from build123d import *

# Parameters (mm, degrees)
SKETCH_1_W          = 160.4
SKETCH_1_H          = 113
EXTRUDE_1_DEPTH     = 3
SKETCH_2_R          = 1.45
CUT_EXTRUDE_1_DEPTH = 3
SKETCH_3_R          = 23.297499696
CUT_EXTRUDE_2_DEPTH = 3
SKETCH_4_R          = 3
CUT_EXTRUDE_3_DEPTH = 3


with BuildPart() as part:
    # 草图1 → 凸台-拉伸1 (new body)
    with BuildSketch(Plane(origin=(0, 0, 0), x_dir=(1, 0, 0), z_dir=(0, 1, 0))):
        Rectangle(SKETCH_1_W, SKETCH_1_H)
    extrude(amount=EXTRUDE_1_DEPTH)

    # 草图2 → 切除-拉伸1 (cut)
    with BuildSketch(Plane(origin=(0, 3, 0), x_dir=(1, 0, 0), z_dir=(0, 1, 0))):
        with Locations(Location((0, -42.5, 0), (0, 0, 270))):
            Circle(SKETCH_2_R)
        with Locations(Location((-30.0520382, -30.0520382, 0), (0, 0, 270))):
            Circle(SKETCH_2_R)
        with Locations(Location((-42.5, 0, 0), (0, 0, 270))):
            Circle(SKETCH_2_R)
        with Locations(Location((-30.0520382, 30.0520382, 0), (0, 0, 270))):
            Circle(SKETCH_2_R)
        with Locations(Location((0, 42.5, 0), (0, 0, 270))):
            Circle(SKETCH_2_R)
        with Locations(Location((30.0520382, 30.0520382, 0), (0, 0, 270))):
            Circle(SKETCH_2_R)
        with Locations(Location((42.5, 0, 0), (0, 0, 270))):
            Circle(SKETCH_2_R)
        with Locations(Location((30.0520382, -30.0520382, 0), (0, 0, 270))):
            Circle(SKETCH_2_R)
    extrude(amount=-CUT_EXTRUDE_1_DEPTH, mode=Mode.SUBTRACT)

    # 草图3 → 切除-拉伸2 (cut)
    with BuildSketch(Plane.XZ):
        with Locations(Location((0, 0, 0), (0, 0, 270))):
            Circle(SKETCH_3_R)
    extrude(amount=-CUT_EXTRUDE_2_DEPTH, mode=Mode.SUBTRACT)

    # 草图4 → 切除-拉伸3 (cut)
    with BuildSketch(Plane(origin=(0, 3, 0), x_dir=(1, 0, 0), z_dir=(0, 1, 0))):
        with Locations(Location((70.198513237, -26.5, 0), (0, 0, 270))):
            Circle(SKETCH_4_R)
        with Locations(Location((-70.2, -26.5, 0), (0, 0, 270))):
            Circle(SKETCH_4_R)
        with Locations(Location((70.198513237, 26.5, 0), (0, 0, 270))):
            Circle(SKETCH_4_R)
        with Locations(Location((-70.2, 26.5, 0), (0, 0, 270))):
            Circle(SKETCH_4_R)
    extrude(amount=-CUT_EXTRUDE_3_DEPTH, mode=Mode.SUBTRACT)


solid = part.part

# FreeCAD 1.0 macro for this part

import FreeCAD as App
import Part
import Sketcher

V = App.Vector

doc = App.newDocument("Part")
body = doc.addObject("PartDesign::Body", "Body")

sketch1 = body.newObject("Sketcher::SketchObject", "Sketch")
sketch1.AttachmentSupport = (doc.getObject("XZ_Plane"), [""])
sketch1.MapMode = "FlatFace"
sketch1.addGeometry([
    Part.LineSegment(V(-80.2, -56.5, 0), V(-80.2, 56.5, 0)),
    Part.LineSegment(V(-80.2, 56.5, 0), V(80.2, 56.5, 0)),
    Part.LineSegment(V(80.2, 56.5, 0), V(80.2, -56.5, 0)),
    Part.LineSegment(V(80.2, -56.5, 0), V(-80.2, -56.5, 0)),
], False)
sketch1.addConstraint([
    Sketcher.Constraint("Coincident", 0, 2, 1, 1),
    Sketcher.Constraint("Coincident", 1, 2, 2, 1),
    Sketcher.Constraint("Coincident", 2, 2, 3, 1),
    Sketcher.Constraint("Coincident", 3, 2, 0, 1),
    Sketcher.Constraint("Vertical", 0),
    Sketcher.Constraint("Horizontal", 1),
    Sketcher.Constraint("Vertical", 2),
    Sketcher.Constraint("Horizontal", 3),
    Sketcher.Constraint("Symmetric", 0, 2, 2, 2, -1, 1),
    Sketcher.Constraint("DistanceY", 0, 1, 0, 2, 113.0),
    Sketcher.Constraint("DistanceX", 1, 1, 1, 2, 160.4),
])
pad1 = body.newObject("PartDesign::Pad", "Pad")
pad1.Profile = sketch1
pad1.Length = 3
pad1.Reversed = True

sketch2 = body.newObject("Sketcher::SketchObject", "Sketch001")
sketch2.AttachmentSupport = (doc.getObject("XZ_Plane"), [""])
sketch2.MapMode = "FlatFace"
sketch2.AttachmentOffset = App.Placement(V(0, 0, -3), App.Rotation())
sketch2.addGeometry([
    Part.Circle(V(0, 42.5, 0), V(0, 0, 1), 1.45),
    Part.Circle(V(-30.052038, 30.052038, 0), V(0, 0, 1), 1.45),
    Part.Circle(V(-42.5, 0, 0), V(0, 0, 1), 1.45),
    Part.Circle(V(-30.052038, -30.052038, 0), V(0, 0, 1), 1.45),
    Part.Circle(V(0, -42.5, 0), V(0, 0, 1), 1.45),
    Part.Circle(V(30.052038, -30.052038, 0), V(0, 0, 1), 1.45),
    Part.Circle(V(42.5, 0, 0), V(0, 0, 1), 1.45),
    Part.Circle(V(30.052038, 30.052038, 0), V(0, 0, 1), 1.45),
], False)
sketch2.addConstraint([
    Sketcher.Constraint("Equal", 0, 1),
    Sketcher.Constraint("Equal", 1, 2),
    Sketcher.Constraint("Equal", 2, 3),
    Sketcher.Constraint("Equal", 3, 4),
    Sketcher.Constraint("Equal", 4, 5),
    Sketcher.Constraint("Equal", 5, 6),
    Sketcher.Constraint("Equal", 6, 7),
    Sketcher.Constraint("Symmetric", 0, 3, 4, 3, -1, 1),
    Sketcher.Constraint("Symmetric", 1, 3, 5, 3, -1, 1),
    Sketcher.Constraint("Symmetric", 2, 3, 6, 3, -1, 1),
    Sketcher.Constraint("Symmetric", 3, 3, 7, 3, -1, 1),
    Sketcher.Constraint("Symmetric", 3, 3, 5, 3, -2),
    Sketcher.Constraint("PointOnObject", 0, 3, -2),
    Sketcher.Constraint("PointOnObject", 2, 3, -1),
    Sketcher.Constraint("Diameter", 0, 2.9),
    Sketcher.Constraint("DistanceY", 4, 3, 0, 3, 85.0),
    Sketcher.Constraint("DistanceX", 2, 3, -1, 1, 42.5),
    Sketcher.Constraint("DistanceX", 1, 3, -1, 1, 30.052038),
    Sketcher.Constraint("DistanceY", -1, 1, 1, 3, 30.052038),
])
pocket1 = body.newObject("PartDesign::Pocket", "Pocket")
pocket1.Profile = sketch2
pocket1.Length = 3
pocket1.Reversed = True

sketch3 = body.newObject("Sketcher::SketchObject", "Sketch002")
sketch3.AttachmentSupport = (doc.getObject("XZ_Plane"), [""])
sketch3.MapMode = "FlatFace"
sketch3.addGeometry(Part.Circle(V(0, 0, 0), V(0, 0, 1), 23.2975), False)
sketch3.addConstraint([
    Sketcher.Constraint("Coincident", 0, 3, -1, 1),
    Sketcher.Constraint("Diameter", 0, 46.594999),
])
pocket2 = body.newObject("PartDesign::Pocket", "Pocket001")
pocket2.Profile = sketch3
pocket2.Length = 3

sketch4 = body.newObject("Sketcher::SketchObject", "Sketch003")
sketch4.AttachmentSupport = (doc.getObject("XZ_Plane"), [""])
sketch4.MapMode = "FlatFace"
sketch4.AttachmentOffset = App.Placement(V(0, 0, -3), App.Rotation())
sketch4.addGeometry([
    Part.Circle(V(70.198513, 26.5, 0), V(0, 0, 1), 3),
    Part.Circle(V(-70.2, 26.5, 0), V(0, 0, 1), 3),
    Part.Circle(V(70.198513, -26.5, 0), V(0, 0, 1), 3),
    Part.Circle(V(-70.2, -26.5, 0), V(0, 0, 1), 3),
], False)
sketch4.addConstraint([
    Sketcher.Constraint("Equal", 0, 1),
    Sketcher.Constraint("Equal", 1, 2),
    Sketcher.Constraint("Equal", 2, 3),
    Sketcher.Constraint("Symmetric", 0, 3, 2, 3, -1),
    Sketcher.Constraint("Symmetric", 1, 3, 3, 3, -1),
    Sketcher.Constraint("Horizontal", 0, 3, 1, 3),
    Sketcher.Constraint("Diameter", 0, 6.0),
    Sketcher.Constraint("DistanceY", 2, 3, 0, 3, 53.0),
    Sketcher.Constraint("DistanceX", 1, 3, -1, 1, 70.2),
    Sketcher.Constraint("DistanceX", -1, 1, 0, 3, 70.198513),
])
pocket3 = body.newObject("PartDesign::Pocket", "Pocket002")
pocket3.Profile = sketch4
pocket3.Length = 3
pocket3.Reversed = True

doc.recompute()
